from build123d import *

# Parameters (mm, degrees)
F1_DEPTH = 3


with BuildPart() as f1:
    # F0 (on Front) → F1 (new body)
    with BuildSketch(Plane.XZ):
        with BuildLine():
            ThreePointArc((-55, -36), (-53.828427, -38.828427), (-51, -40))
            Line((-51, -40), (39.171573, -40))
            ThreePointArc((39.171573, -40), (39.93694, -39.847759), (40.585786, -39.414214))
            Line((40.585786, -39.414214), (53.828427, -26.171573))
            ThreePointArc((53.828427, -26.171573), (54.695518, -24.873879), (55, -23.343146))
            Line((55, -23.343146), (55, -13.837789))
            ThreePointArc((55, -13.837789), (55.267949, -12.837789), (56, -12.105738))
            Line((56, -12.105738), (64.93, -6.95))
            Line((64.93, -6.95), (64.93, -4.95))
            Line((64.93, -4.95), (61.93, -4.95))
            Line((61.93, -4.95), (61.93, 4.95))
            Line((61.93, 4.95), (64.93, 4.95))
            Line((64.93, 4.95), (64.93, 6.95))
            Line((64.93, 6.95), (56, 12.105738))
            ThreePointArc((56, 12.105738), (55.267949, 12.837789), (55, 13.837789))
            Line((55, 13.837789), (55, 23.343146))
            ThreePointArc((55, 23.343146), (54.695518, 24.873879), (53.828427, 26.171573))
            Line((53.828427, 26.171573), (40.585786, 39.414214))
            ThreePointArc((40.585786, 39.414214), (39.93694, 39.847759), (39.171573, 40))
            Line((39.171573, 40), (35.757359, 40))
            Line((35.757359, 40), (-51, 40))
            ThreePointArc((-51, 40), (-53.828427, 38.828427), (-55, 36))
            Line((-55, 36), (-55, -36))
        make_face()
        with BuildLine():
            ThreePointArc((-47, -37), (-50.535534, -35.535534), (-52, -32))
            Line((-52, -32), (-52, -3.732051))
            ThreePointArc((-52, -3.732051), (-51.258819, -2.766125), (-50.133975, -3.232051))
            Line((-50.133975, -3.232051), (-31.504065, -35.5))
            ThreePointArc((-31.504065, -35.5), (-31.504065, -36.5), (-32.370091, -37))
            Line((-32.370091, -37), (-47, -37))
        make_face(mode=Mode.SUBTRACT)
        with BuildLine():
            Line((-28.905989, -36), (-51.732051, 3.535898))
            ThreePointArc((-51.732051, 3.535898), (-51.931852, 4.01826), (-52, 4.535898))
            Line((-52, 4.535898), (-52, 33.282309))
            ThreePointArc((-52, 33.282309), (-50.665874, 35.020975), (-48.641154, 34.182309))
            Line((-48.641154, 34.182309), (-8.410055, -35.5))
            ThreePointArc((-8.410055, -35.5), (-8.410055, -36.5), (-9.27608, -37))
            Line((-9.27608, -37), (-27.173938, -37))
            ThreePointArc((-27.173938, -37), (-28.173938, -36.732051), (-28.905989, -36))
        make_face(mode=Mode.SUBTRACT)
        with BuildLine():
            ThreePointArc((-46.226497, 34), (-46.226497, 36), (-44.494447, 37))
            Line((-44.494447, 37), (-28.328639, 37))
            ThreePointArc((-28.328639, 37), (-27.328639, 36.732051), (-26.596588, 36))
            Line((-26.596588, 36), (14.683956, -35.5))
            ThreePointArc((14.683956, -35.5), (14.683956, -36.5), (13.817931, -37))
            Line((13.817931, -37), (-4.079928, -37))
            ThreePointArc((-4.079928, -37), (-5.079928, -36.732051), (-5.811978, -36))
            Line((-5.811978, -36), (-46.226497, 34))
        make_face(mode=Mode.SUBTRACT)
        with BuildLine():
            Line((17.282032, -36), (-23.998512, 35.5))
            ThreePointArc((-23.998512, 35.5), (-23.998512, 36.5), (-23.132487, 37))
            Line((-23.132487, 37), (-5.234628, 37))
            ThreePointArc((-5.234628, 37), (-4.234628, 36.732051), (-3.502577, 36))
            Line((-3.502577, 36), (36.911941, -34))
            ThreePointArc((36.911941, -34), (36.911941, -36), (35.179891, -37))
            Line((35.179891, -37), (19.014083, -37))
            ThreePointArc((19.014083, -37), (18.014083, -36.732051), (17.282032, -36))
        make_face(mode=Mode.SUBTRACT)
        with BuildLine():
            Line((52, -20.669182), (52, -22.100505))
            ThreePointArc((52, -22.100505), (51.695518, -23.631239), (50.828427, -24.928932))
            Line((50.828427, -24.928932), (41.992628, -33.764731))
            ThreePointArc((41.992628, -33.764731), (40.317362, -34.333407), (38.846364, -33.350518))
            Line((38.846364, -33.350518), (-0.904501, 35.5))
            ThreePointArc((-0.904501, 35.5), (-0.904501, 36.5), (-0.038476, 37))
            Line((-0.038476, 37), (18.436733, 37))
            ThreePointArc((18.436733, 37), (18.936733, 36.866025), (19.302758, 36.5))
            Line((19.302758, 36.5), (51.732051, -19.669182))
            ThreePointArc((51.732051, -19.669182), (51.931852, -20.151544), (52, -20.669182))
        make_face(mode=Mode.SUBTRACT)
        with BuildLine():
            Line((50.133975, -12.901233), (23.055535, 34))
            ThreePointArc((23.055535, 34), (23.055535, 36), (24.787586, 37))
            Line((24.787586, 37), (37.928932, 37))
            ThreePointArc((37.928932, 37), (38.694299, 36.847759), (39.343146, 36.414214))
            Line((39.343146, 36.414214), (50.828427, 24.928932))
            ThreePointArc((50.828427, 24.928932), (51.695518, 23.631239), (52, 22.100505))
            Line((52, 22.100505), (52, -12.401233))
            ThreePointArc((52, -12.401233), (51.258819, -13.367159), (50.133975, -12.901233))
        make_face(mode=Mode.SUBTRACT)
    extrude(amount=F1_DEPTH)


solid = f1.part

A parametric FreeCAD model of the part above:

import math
import FreeCAD as App
import Part
import Sketcher

V = App.Vector

doc = App.newDocument("Part")
body = doc.addObject("PartDesign::Body", "Body")

# Sketch on XZ plane
sketch1 = body.newObject("Sketcher::SketchObject", "Sketch")
sketch1.AttachmentSupport = (doc.getObject("XZ_Plane"), [""])
sketch1.MapMode = "FlatFace"
sketch1.addGeometry([
    Part.ArcOfCircle(Part.Circle(V(-51, -36, 0), V(0, 0, 1), 4), math.radians(-179.999994), math.radians(-90.000006)),  # 0
    Part.LineSegment(V(-51, -40, 0), V(39.171573, -40, 0)),  # 1
    Part.ArcOfCircle(Part.Circle(V(39.171573, -38, 0), V(0, 0, 1), 2), math.radians(-90.000002), math.radians(-45.000012)),  # 2
    Part.LineSegment(V(40.585786, -39.414214, 0), V(53.828427, -26.171573, 0)),  # 3
    Part.ArcOfCircle(Part.Circle(V(50.999996, -23.343144, 0), V(0, 0, 1), 4.000004), math.radians(-44.999981), math.radians(-0.000025)),  # 4
    Part.LineSegment(V(55, -23.343146, 0), V(55, -13.837789, 0)),  # 5
    Part.ArcOfCircle(Part.Circle(V(57, -13.837789, 0), V(0, 0, 1), 2), math.radians(119.999992), math.radians(180.000013)),  # 6
    Part.LineSegment(V(56, -12.105738, 0), V(64.93, -6.95, 0)),  # 7
    Part.LineSegment(V(64.93, -6.95, 0), V(64.93, -4.95, 0)),  # 8
    Part.LineSegment(V(64.93, -4.95, 0), V(61.93, -4.95, 0)),  # 9
    Part.LineSegment(V(61.93, -4.95, 0), V(61.93, 4.95, 0)),  # 10
    Part.LineSegment(V(61.93, 4.95, 0), V(64.93, 4.95, 0)),  # 11
    Part.LineSegment(V(64.93, 4.95, 0), V(64.93, 6.95, 0)),  # 12
    Part.LineSegment(V(64.93, 6.95, 0), V(56, 12.105738, 0)),  # 13
    Part.ArcOfCircle(Part.Circle(V(57, 13.837789, 0), V(0, 0, 1), 2), math.radians(179.999987), math.radians(240.000008)),  # 14
    Part.LineSegment(V(55, 13.837789, 0), V(55, 23.343146, 0)),  # 15
    Part.ArcOfCircle(Part.Circle(V(50.999996, 23.343144, 0), V(0, 0, 1), 4.000004), math.radians(0.000025), math.radians(44.999981)),  # 16
    Part.LineSegment(V(53.828427, 26.171573, 0), V(40.585786, 39.414214, 0)),  # 17
    Part.ArcOfCircle(Part.Circle(V(39.171573, 38, 0), V(0, 0, 1), 2), math.radians(45.000012), math.radians(90.000002)),  # 18
    Part.LineSegment(V(39.171573, 40, 0), V(-51, 40, 0)),  # 19
    Part.ArcOfCircle(Part.Circle(V(-51, 36, 0), V(0, 0, 1), 4), math.radians(90.000006), math.radians(179.999994)),  # 20
    Part.LineSegment(V(-55, 36, 0), V(-55, -36, 0)),  # 21
    Part.LineSegment(V(-32.370091, -37, 0), V(-47, -37, 0)),  # 22
    Part.ArcOfCircle(Part.Circle(V(-47, -32, 0), V(0, 0, 1), 5), math.radians(179.999996), math.radians(270.000004)),  # 23
    Part.LineSegment(V(-52, -32, 0), V(-52, -3.732051, 0)),  # 24
    Part.ArcOfCircle(Part.Circle(V(-51, -3.732051, 0), V(0, 0, 1), 1), math.radians(29.999984), math.radians(180.000022)),  # 25
    Part.LineSegment(V(-50.133975, -3.232051, 0), V(-31.504065, -35.5, 0)),  # 26
    Part.ArcOfCircle(Part.Circle(V(-32.37009, -36, 0), V(0, 0, 1), 1), math.radians(-90.000034), math.radians(30)),  # 27
    Part.ArcOfCircle(Part.Circle(V(-27.173938, -35, 0), V(0, 0, 1), 2), math.radians(-150.000008), math.radians(-89.999987)),  # 28
    Part.LineSegment(V(-28.905989, -36, 0), V(-51.732051, 3.535898, 0)),  # 29
    Part.ArcOfCircle(Part.Circle(V(-50.000006, 4.535896, 0), V(0, 0, 1), 1.999994), math.radians(179.999941), math.radians(210.000038)),  # 30
    Part.LineSegment(V(-52, 4.535898, 0), V(-52, 33.282309, 0)),  # 31
    Part.ArcOfCircle(Part.Circle(V(-50.2, 33.282308, 0), V(0, 0, 1), 1.8), math.radians(30.000024), math.radians(179.999974)),  # 32
    Part.LineSegment(V(-48.641154, 34.182309, 0), V(-8.410055, -35.5, 0)),  # 33
    Part.ArcOfCircle(Part.Circle(V(-9.27608, -36, 0), V(0, 0, 1), 1), math.radians(-89.999977), math.radians(30)),  # 34
    Part.LineSegment(V(-9.27608, -37, 0), V(-27.173938, -37, 0)),  # 35
    Part.LineSegment(V(-5.811978, -36, 0), V(-46.226497, 34, 0)),  # 36
    Part.ArcOfCircle(Part.Circle(V(-44.494446, 35, 0), V(0, 0, 1), 2), math.radians(90.000023), math.radians(210)),  # 37
    Part.LineSegment(V(-44.494447, 37, 0), V(-28.328639, 37, 0)),  # 38
    Part.ArcOfCircle(Part.Circle(V(-28.328639, 35, 0), V(0, 0, 1), 2), math.radians(29.999992), math.radians(90.000013)),  # 39
    Part.LineSegment(V(-26.596588, 36, 0), V(14.683956, -35.5, 0)),  # 40
    Part.ArcOfCircle(Part.Circle(V(13.817931, -36, 0), V(0, 0, 1), 1), math.radians(-89.999977), math.radians(30)),  # 41
    Part.LineSegment(V(13.817931, -37, 0), V(-4.079928, -37, 0)),  # 42
    Part.ArcOfCircle(Part.Circle(V(-4.079929, -35.000004, 0), V(0, 0, 1), 1.999996), math.radians(-150.000061), math.radians(-89.999962)),  # 43
    Part.ArcOfCircle(Part.Circle(V(19.014083, -35, 0), V(0, 0, 1), 2), math.radians(-150.000008), math.radians(-89.999987)),  # 44
    Part.LineSegment(V(17.282032, -36, 0), V(-23.998512, 35.5, 0)),  # 45
    Part.ArcOfCircle(Part.Circle(V(-23.132487, 36, 0), V(0, 0, 1), 1), math.radians(90.000023), math.radians(210)),  # 46
    Part.LineSegment(V(-23.132487, 37, 0), V(-5.234628, 37, 0)),  # 47
    Part.ArcOfCircle(Part.Circle(V(-5.234628, 35, 0), V(0, 0, 1), 2), math.radians(29.999992), math.radians(90.000013)),  # 48
    Part.LineSegment(V(-3.502577, 36, 0), V(36.911941, -34, 0)),  # 49
    Part.ArcOfCircle(Part.Circle(V(35.17989, -35, 0), V(0, 0, 1), 2), math.radians(-89.999977), math.radians(30)),  # 50
    Part.LineSegment(V(35.179891, -37, 0), V(19.014083, -37, 0)),  # 51
    Part.ArcOfCircle(Part.Circle(V(50.000006, -20.66918, 0), V(0, 0, 1), 1.999994), math.radians(-0.000059), math.radians(30.000038)),  # 52
    Part.LineSegment(V(52, -20.669182, 0), V(52, -22.100505, 0)),  # 53
    Part.ArcOfCircle(Part.Circle(V(48.000001, -22.100505, 0), V(0, 0, 1), 3.999999), math.radians(-45.000008), math.radians(0.000002)),  # 54
    Part.LineSegment(V(50.828427, -24.928932, 0), V(41.992628, -33.764731, 0)),  # 55
    Part.ArcOfCircle(Part.Circle(V(40.578415, -32.350517, 0), V(0, 0, 1), 2), math.radians(-149.999973), math.radians(-45.000008)),  # 56
    Part.LineSegment(V(38.846364, -33.350518, 0), V(-0.904501, 35.5, 0)),  # 57
    Part.ArcOfCircle(Part.Circle(V(-0.038476, 36, 0), V(0, 0, 1), 1), math.radians(90.000023), math.radians(210)),  # 58
    Part.LineSegment(V(-0.038476, 37, 0), V(18.436733, 37, 0)),  # 59
    Part.ArcOfCircle(Part.Circle(V(18.436732, 35.999999, 0), V(0, 0, 1), 1.000001), math.radians(30.000032), math.radians(89.999945)),  # 60
    Part.LineSegment(V(19.302758, 36.5, 0), V(51.732051, -19.669182, 0)),  # 61
    Part.ArcOfCircle(Part.Circle(V(51, -12.401233, 0), V(0, 0, 1), 1), math.radians(-150.000016), math.radians(0.000022)),  # 62
    Part.LineSegment(V(50.133975, -12.901233, 0), V(23.055535, 34, 0)),  # 63
    Part.ArcOfCircle(Part.Circle(V(24.787586, 35, 0), V(0, 0, 1), 2), math.radians(89.999994), math.radians(210)),  # 64
    Part.LineSegment(V(24.787586, 37, 0), V(37.928932, 37, 0)),  # 65
    Part.ArcOfCircle(Part.Circle(V(37.928931, 34.999996, 0), V(0, 0, 1), 2.000004), math.radians(45.000067), math.radians(89.999976)),  # 66
    Part.LineSegment(V(39.343146, 36.414214, 0), V(50.828427, 24.928932, 0)),  # 67
    Part.ArcOfCircle(Part.Circle(V(48.000001, 22.100505, 0), V(0, 0, 1), 3.999999), math.radians(-0.000002), math.radians(45.000008)),  # 68
    Part.LineSegment(V(52, 22.100505, 0), V(52, -12.401233, 0)),  # 69
], False)
sketch1.addConstraint([
    Sketcher.Constraint("Tangent", 0, 2, 1, 1),
    Sketcher.Constraint("Tangent", 1, 2, 2, 1),
    Sketcher.Constraint("Tangent", 2, 2, 3, 1),
    Sketcher.Constraint("Tangent", 3, 2, 4, 1),
    Sketcher.Constraint("Tangent", 4, 2, 5, 1),
    Sketcher.Constraint("Tangent", 5, 2, 6, 2),
    Sketcher.Constraint("Tangent", 6, 1, 7, 1),
    Sketcher.Constraint("Coincident", 7, 2, 8, 1),
    Sketcher.Constraint("Coincident", 8, 2, 9, 1),
    Sketcher.Constraint("Coincident", 9, 2, 10, 1),
    Sketcher.Constraint("Coincident", 10, 2, 11, 1),
    Sketcher.Constraint("Coincident", 11, 2, 12, 1),
    Sketcher.Constraint("Coincident", 12, 2, 13, 1),
    Sketcher.Constraint("Tangent", 13, 2, 14, 2),
    Sketcher.Constraint("Tangent", 14, 1, 15, 1),
    Sketcher.Constraint("Tangent", 15, 2, 16, 1),
    Sketcher.Constraint("Tangent", 16, 2, 17, 1),
    Sketcher.Constraint("Tangent", 17, 2, 18, 1),
    Sketcher.Constraint("Tangent", 18, 2, 19, 1),
    Sketcher.Constraint("Tangent", 19, 2, 20, 1),
    Sketcher.Constraint("Tangent", 20, 2, 21, 1),
    Sketcher.Constraint("Tangent", 21, 2, 0, 1),
    Sketcher.Constraint("Tangent", 22, 2, 23, 2),
    Sketcher.Constraint("Tangent", 23, 1, 24, 1),
    Sketcher.Constraint("Tangent", 24, 2, 25, 2),
    Sketcher.Constraint("Tangent", 25, 1, 26, 1),
    Sketcher.Constraint("Tangent", 26, 2, 27, 2),
    Sketcher.Constraint("Tangent", 27, 1, 22, 1),
    Sketcher.Constraint("Tangent", 28, 1, 29, 1),
    Sketcher.Constraint("Tangent", 29, 2, 30, 2),
    Sketcher.Constraint("Tangent", 30, 1, 31, 1),
    Sketcher.Constraint("Tangent", 31, 2, 32, 2),
    Sketcher.Constraint("Tangent", 32, 1, 33, 1),
    Sketcher.Constraint("Tangent", 33, 2, 34, 2),
    Sketcher.Constraint("Tangent", 34, 1, 35, 1),
    Sketcher.Constraint("Tangent", 35, 2, 28, 2),
    Sketcher.Constraint("Tangent", 36, 2, 37, 2),
    Sketcher.Constraint("Tangent", 37, 1, 38, 1),
    Sketcher.Constraint("Tangent", 38, 2, 39, 2),
    Sketcher.Constraint("Tangent", 39, 1, 40, 1),
    Sketcher.Constraint("Tangent", 40, 2, 41, 2),
    Sketcher.Constraint("Tangent", 41, 1, 42, 1),
    Sketcher.Constraint("Tangent", 42, 2, 43, 2),
    Sketcher.Constraint("Tangent", 43, 1, 36, 1),
    Sketcher.Constraint("Tangent", 44, 1, 45, 1),
    Sketcher.Constraint("Tangent", 45, 2, 46, 2),
    Sketcher.Constraint("Tangent", 46, 1, 47, 1),
    Sketcher.Constraint("Tangent", 47, 2, 48, 2),
    Sketcher.Constraint("Tangent", 48, 1, 49, 1),
    Sketcher.Constraint("Tangent", 49, 2, 50, 2),
    Sketcher.Constraint("Tangent", 50, 1, 51, 1),
    Sketcher.Constraint("Tangent", 51, 2, 44, 2),
    Sketcher.Constraint("Tangent", 52, 1, 53, 1),
    Sketcher.Constraint("Tangent", 53, 2, 54, 2),
    Sketcher.Constraint("Tangent", 54, 1, 55, 1),
    Sketcher.Constraint("Tangent", 55, 2, 56, 2),
    Sketcher.Constraint("Tangent", 56, 1, 57, 1),
    Sketcher.Constraint("Tangent", 57, 2, 58, 2),
    Sketcher.Constraint("Tangent", 58, 1, 59, 1),
    Sketcher.Constraint("Tangent", 59, 2, 60, 2),
    Sketcher.Constraint("Tangent", 60, 1, 61, 1),
    Sketcher.Constraint("Tangent", 61, 2, 52, 2),
    Sketcher.Constraint("Tangent", 62, 1, 63, 1),
    Sketcher.Constraint("Tangent", 63, 2, 64, 2),
    Sketcher.Constraint("Tangent", 64, 1, 65, 1),
    Sketcher.Constraint("Tangent", 65, 2, 66, 2),
    Sketcher.Constraint("Tangent", 66, 1, 67, 1),
    Sketcher.Constraint("Tangent", 67, 2, 68, 2),
    Sketcher.Constraint("Tangent", 68, 1, 69, 1),
    Sketcher.Constraint("Tangent", 69, 2, 62, 2),
    Sketcher.Constraint("Horizontal", 1),
    Sketcher.Constraint("Vertical", 5),
    Sketcher.Constraint("Vertical", 8),
    Sketcher.Constraint("Horizontal", 9),
    Sketcher.Constraint("Vertical", 10),
    Sketcher.Constraint("Horizontal", 11),
    Sketcher.Constraint("Vertical", 12),
    Sketcher.Constraint("Vertical", 15),
    Sketcher.Constraint("Horizontal", 19),
    Sketcher.Constraint("Vertical", 21),
    Sketcher.Constraint("Horizontal", 22),
    Sketcher.Constraint("Vertical", 24),
    Sketcher.Constraint("Vertical", 31),
    Sketcher.Constraint("Horizontal", 35),
    Sketcher.Constraint("Horizontal", 38),
    Sketcher.Constraint("Horizontal", 42),
    Sketcher.Constraint("Horizontal", 47),
    Sketcher.Constraint("Horizontal", 51),
    Sketcher.Constraint("Vertical", 53),
    Sketcher.Constraint("Horizontal", 59),
    Sketcher.Constraint("Horizontal", 65),
    Sketcher.Constraint("Vertical", 69),
    Sketcher.Constraint("Equal", 2, 6),
    Sketcher.Constraint("Equal", 6, 14),
    Sketcher.Constraint("Equal", 4, 16),
    Sketcher.Constraint("Equal", 14, 18),
    Sketcher.Constraint("Equal", 0, 20),
    Sketcher.Constraint("Equal", 25, 27),
    Sketcher.Constraint("Equal", 18, 28),
    Sketcher.Constraint("Equal", 27, 34),
    Sketcher.Constraint("Equal", 28, 37),
    Sketcher.Constraint("Equal", 37, 39),
    Sketcher.Constraint("Equal", 34, 41),
    Sketcher.Constraint("Equal", 39, 44),
    Sketcher.Constraint("Equal", 41, 46),
    Sketcher.Constraint("Equal", 44, 48),
    Sketcher.Constraint("Equal", 48, 50),
    Sketcher.Constraint("Equal", 30, 52),
    Sketcher.Constraint("Equal", 20, 54),
    Sketcher.Constraint("Equal", 50, 56),
    Sketcher.Constraint("Equal", 46, 58),
    Sketcher.Constraint("Equal", 58, 60),
    Sketcher.Constraint("Equal", 60, 62),
    Sketcher.Constraint("Equal", 56, 64),
    Sketcher.Constraint("Equal", 54, 68),
    Sketcher.Constraint("Symmetric", 6, 3, 14, 3, -1),
    Sketcher.Constraint("Symmetric", 2, 3, 18, 3, -1),
    Sketcher.Constraint("Symmetric", 54, 3, 68, 3, -1),
    Sketcher.Constraint("Symmetric", 8, 2, 11, 2, -1),
    Sketcher.Constraint("Perpendicular", 3, 17),
    Sketcher.Constraint("Perpendicular", 7, 26),
    Sketcher.Constraint("Parallel", 26, 29),
    Sketcher.Constraint("Parallel", 29, 33),
    Sketcher.Constraint("Parallel", 33, 36),
    Sketcher.Constraint("Parallel", 36, 40),
    Sketcher.Constraint("Parallel", 40, 45),
    Sketcher.Constraint("Parallel", 45, 49),
    Sketcher.Constraint("Perpendicular", 17, 55),
    Sketcher.Constraint("Parallel", 49, 57),
    Sketcher.Constraint("Parallel", 57, 61),
    Sketcher.Constraint("Parallel", 61, 63),
    Sketcher.Constraint("Perpendicular", 55, 67),
    Sketcher.Constraint("Horizontal", 0, 3, 27, 3),
    Sketcher.Constraint("Horizontal", 27, 3, 34, 3),
    Sketcher.Constraint("Horizontal", 34, 3, 41, 3),
    Sketcher.Constraint("Horizontal", 28, 3, 44, 3),
    Sketcher.Constraint("Horizontal", 20, 3, 46, 3),
    Sketcher.Constraint("Horizontal", 39, 3, 48, 3),
    Sketcher.Constraint("Horizontal", 46, 3, 58, 3),
    Sketcher.Constraint("Horizontal", 48, 3, 64, 3),
    Sketcher.Constraint("Horizontal", 21, 2, 28, 1),
    Sketcher.Constraint("Horizontal", 28, 1, 43, 1),
    Sketcher.Constraint("Vertical", 20, 3, 25, 3),
    Sketcher.Constraint("Vertical", 6, 1, 13, 2),
    Sketcher.Constraint("Vertical", 3, 2, 16, 2),
    Sketcher.Constraint("Vertical", 24, 2, 30, 1),
    Sketcher.Constraint("Equal", 35, 42),
    Sketcher.Constraint("Equal", 42, 47),
    Sketcher.Constraint("Radius", 0, 4.0),
    Sketcher.Constraint("Radius", 2, 2.0),
    Sketcher.Constraint("Radius", 23, 5.0),
    Sketcher.Constraint("Radius", 25, 1.0),
    Sketcher.Constraint("Radius", 32, 1.8),
    Sketcher.Constraint("DistanceX", 9, 2, 9, 1, 3.0),
    Sketcher.Constraint("DistanceY", 8, 1, 8, 2, 2.0),
    Sketcher.Constraint("DistanceY", 21, 2, 21, 1, 72.0),
    Sketcher.Constraint("DistanceY", 10, 1, 10, 2, 9.9),
    Sketcher.Constraint("DistanceX", 0, 3, -1, 1, 51.0),
    Sketcher.Constraint("DistanceX", -1, 1, 6, 3, 57.0),
    Sketcher.Constraint("DistanceX", -1, 1, 54, 3, 48.000001),
    Sketcher.Constraint("DistanceX", -1, 1, 7, 2, 64.93),
    Sketcher.Constraint("Radius", 4, 4.000004),
    Sketcher.Constraint("Radius", 30, 1.999994),
    Sketcher.Constraint("Radius", 66, 2.000004),
    Sketcher.Constraint("Distance", 33, 80.462199),
    Sketcher.Constraint("DistanceX", 22, 2, 22, 1, 14.629909),
    Sketcher.Constraint("DistanceX", 38, 1, 38, 2, 16.165808),
    Sketcher.Constraint("DistanceX", 59, 1, 59, 2, 18.475209),
    Sketcher.Constraint("DistanceX", 57, 2, -1, 1, 0.904501),
    Sketcher.Constraint("Distance", 57, 79.50173),
    Sketcher.Constraint("Distance", 63, 54.156879),
    Sketcher.Constraint("DistanceX", 1, 1, 1, 2, 90.171573),
    Sketcher.Constraint("DistanceX", 39, 3, -1, 1, 28.328639),
    Sketcher.Constraint("DistanceX", -1, 1, 50, 3, 35.17989),
])
pad1 = body.newObject("PartDesign::Pad", "Pad")
pad1.Profile = sketch1
pad1.Length = 3

doc.recompute()
